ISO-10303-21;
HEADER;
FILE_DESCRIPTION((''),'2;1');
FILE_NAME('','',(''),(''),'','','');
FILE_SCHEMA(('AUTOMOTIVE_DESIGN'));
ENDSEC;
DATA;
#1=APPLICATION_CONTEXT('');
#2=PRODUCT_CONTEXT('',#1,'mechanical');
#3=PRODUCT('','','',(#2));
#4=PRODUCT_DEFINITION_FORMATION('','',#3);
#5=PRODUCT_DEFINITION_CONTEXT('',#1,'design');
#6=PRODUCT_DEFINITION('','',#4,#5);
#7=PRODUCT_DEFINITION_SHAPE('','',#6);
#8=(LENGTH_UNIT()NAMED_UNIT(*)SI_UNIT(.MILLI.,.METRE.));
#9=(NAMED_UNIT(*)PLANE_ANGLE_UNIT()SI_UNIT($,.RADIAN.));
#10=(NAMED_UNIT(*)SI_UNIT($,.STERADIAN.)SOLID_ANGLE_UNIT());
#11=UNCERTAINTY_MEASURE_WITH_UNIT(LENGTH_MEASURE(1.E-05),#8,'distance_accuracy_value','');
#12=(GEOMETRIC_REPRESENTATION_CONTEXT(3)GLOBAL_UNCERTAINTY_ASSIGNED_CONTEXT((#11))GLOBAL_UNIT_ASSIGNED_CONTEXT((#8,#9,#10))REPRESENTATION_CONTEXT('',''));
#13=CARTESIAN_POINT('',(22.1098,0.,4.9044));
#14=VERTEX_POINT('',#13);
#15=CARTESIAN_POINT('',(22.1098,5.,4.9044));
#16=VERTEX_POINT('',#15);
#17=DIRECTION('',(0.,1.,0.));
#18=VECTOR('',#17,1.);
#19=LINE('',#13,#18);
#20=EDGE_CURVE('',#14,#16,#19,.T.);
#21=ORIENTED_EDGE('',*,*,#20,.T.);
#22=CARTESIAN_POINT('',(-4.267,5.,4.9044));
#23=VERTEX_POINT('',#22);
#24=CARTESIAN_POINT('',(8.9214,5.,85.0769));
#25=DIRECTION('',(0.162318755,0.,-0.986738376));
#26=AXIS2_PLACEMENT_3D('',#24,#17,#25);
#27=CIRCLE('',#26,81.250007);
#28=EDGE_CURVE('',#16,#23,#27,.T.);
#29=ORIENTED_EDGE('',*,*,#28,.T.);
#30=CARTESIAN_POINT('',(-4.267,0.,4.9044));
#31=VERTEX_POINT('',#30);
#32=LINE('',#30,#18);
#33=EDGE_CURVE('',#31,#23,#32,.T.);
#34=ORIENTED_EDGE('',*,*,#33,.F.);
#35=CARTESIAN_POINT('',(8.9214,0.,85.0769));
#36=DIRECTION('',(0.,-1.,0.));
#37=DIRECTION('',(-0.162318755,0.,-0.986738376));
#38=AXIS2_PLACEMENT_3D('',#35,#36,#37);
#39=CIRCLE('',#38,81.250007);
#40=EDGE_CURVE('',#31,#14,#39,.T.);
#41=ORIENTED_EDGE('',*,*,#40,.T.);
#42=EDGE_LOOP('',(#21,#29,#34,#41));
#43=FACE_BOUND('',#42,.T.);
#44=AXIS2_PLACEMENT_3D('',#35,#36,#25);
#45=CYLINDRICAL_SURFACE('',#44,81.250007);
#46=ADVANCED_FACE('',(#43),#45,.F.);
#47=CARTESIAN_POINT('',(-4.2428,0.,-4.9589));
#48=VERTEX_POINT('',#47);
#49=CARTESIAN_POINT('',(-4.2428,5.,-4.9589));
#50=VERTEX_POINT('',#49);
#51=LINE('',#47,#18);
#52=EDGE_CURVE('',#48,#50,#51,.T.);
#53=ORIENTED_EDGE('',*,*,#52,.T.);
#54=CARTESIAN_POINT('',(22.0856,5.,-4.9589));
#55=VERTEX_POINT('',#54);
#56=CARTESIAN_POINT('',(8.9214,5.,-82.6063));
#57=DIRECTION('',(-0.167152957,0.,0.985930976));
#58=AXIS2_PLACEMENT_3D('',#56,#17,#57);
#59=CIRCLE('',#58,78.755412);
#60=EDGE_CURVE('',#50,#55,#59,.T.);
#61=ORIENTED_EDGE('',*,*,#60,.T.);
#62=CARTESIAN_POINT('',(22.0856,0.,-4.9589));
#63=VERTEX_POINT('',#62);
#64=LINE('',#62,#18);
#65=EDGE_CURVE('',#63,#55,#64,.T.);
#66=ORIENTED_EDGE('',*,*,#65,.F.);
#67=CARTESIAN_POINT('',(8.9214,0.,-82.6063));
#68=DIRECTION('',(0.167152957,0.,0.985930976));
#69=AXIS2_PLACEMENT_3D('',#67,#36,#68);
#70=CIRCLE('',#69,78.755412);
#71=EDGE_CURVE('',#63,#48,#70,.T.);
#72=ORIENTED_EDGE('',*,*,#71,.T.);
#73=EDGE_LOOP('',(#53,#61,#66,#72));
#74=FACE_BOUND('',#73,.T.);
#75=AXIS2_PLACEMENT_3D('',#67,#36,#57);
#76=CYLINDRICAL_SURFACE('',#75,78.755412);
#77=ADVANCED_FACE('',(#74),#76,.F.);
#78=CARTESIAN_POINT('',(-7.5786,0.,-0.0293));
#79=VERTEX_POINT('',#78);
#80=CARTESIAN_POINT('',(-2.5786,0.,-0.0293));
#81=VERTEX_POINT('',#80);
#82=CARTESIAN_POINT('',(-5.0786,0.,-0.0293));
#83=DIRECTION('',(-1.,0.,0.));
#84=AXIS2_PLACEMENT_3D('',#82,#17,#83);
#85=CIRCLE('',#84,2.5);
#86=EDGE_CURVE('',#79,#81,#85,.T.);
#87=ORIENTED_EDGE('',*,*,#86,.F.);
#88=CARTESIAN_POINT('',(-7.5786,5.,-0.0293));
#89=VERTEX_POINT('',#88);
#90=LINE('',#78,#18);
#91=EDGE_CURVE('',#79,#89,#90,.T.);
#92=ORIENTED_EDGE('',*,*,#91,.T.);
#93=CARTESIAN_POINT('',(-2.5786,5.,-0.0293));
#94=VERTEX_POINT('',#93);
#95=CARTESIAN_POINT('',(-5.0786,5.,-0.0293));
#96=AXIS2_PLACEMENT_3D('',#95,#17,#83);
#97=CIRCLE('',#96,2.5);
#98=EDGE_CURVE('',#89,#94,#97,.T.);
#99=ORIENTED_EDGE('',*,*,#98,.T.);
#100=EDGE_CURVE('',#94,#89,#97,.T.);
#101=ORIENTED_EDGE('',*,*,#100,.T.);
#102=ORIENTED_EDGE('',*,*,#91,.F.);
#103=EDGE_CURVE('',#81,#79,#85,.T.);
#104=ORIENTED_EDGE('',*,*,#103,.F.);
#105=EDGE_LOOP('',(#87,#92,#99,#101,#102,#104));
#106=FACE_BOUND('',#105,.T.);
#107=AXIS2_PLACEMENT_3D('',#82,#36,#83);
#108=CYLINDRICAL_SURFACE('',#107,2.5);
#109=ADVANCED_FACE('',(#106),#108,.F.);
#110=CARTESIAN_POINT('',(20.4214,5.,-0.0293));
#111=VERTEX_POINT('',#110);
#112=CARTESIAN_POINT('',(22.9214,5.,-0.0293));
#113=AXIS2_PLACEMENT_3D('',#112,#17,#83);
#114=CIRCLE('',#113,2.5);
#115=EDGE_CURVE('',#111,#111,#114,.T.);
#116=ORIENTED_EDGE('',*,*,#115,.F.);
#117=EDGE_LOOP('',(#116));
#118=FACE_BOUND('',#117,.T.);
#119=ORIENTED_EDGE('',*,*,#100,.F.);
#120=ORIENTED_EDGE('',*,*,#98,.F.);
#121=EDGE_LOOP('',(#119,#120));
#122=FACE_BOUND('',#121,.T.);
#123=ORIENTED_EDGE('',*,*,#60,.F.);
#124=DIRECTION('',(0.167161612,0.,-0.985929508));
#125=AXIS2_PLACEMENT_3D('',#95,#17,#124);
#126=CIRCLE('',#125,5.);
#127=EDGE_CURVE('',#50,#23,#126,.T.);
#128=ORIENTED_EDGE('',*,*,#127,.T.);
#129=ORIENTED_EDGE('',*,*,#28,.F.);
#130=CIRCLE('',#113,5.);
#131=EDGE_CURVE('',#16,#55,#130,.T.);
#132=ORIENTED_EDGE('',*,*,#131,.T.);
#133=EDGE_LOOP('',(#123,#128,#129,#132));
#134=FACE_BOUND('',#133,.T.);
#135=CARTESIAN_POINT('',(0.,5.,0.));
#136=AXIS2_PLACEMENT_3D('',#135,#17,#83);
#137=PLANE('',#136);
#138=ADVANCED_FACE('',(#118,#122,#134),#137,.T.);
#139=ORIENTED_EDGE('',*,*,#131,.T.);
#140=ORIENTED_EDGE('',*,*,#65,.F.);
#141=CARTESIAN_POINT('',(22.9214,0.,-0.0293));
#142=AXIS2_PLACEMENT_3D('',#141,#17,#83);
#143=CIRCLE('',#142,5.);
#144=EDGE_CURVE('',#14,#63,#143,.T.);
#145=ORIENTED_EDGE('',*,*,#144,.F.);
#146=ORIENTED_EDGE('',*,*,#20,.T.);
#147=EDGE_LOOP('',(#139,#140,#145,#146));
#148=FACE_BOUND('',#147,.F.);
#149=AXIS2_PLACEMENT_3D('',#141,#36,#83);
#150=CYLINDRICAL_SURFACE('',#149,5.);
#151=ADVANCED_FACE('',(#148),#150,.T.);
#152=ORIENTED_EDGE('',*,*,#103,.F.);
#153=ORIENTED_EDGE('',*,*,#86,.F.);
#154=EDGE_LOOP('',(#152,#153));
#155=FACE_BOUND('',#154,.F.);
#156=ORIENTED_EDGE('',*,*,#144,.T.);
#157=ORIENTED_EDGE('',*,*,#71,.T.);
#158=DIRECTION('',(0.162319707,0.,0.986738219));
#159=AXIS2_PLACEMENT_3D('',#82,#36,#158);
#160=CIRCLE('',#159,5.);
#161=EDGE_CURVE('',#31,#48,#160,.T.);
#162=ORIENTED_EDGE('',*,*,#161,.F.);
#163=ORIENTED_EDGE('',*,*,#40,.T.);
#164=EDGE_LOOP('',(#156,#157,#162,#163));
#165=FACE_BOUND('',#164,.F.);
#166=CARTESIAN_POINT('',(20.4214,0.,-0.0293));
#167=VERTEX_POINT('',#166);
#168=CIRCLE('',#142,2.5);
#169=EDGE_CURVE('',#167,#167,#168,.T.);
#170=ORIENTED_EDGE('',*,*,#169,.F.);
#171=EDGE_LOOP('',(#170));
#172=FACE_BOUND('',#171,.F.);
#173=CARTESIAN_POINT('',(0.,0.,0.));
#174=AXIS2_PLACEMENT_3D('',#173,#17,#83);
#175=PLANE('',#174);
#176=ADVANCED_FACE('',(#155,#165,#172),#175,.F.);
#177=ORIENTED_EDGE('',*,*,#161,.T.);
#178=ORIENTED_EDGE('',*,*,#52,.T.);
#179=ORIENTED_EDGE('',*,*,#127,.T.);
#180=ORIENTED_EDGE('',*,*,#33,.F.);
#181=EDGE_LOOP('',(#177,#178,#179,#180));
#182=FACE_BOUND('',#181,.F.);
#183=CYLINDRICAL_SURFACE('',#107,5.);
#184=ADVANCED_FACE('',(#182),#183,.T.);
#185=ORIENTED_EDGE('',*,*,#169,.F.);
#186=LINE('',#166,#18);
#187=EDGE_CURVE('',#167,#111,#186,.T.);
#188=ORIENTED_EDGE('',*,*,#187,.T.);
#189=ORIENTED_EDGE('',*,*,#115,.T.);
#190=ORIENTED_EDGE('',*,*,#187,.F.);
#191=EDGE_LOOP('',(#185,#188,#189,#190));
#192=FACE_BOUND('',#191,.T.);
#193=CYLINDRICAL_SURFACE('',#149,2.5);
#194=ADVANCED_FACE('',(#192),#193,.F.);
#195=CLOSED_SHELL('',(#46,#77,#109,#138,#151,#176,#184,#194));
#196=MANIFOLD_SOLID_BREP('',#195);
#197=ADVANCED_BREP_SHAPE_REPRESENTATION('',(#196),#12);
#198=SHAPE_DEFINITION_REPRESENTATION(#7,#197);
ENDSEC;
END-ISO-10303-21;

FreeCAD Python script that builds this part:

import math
import FreeCAD as App
import Part
import Sketcher

V = App.Vector
Q = App.Units.Quantity

doc = App.newDocument("Part")
body = doc.addObject("PartDesign::Body", "Body")

sketch1 = body.newObject("Sketcher::SketchObject", "Sketch")
sketch1.AttachmentSupport = (doc.getObject("XZ_Plane"), [""])
sketch1.MapMode = "FlatFace"
sketch1.addGeometry([
    Part.ArcOfCircle(Part.Circle(V(22.9214, -0.0293, 0), V(0, 0, 1), 5), math.radians(-99.62283), math.radians(99.341566)),
    Part.ArcOfCircle(Part.Circle(V(8.9214, -82.6063, 0), V(0, 0, 1), 78.755412), math.radians(80.377673), math.radians(99.622327)),
    Part.ArcOfCircle(Part.Circle(V(-5.0786, -0.0293, 0), V(0, 0, 1), 5), math.radians(80.658434), math.radians(279.62283)),
    Part.ArcOfCircle(Part.Circle(V(8.9214, 85.0769, 0), V(0, 0, 1), 81.250007), math.radians(-99.341511), math.radians(-80.658489)),
    Part.Circle(V(22.9214, -0.0293, 0), V(0, 0, 1), 2.5),
    Part.Circle(V(-5.0786, -0.0293, 0), V(0, 0, 1), 2.5),
], False)
sketch1.addConstraint([
    Sketcher.Constraint("Tangent", 0, 1, 1, 1),
    Sketcher.Constraint("Tangent", 1, 2, 2, 2),
    Sketcher.Constraint("Tangent", 2, 1, 3, 1),
    Sketcher.Constraint("Tangent", 3, 2, 0, 2),
    Sketcher.Constraint("Coincident", 4, 3, 0, 3),
    Sketcher.Constraint("Coincident", 5, 3, 2, 3),
    Sketcher.Constraint("Equal", 0, 2),
    Sketcher.Constraint("Equal", 4, 5),
    Sketcher.Constraint("Horizontal", 0, 3, 2, 3),
    Sketcher.Constraint("Diameter", 4, Q("5 mm")),
    Sketcher.Constraint("Radius", 0, Q("5 mm")),
    Sketcher.Constraint("DistanceX", 2, 3, 0, 3, Q("28 mm")),
    Sketcher.Constraint("Radius", 3, Q("81.25 mm")),
    Sketcher.Constraint("Radius", 1, Q("78.7554 mm")),
    Sketcher.Constraint("DistanceY", -1, 1, 3, 3, Q("85.077 mm")),
    Sketcher.Constraint("DistanceX", 2, 1, -1, 1, Q("4.267 mm")),
])
pad1 = body.newObject("PartDesign::Pad", "Pad")
pad1.Profile = sketch1
pad1.Length = 5
pad1.Reversed = True

doc.recompute()
